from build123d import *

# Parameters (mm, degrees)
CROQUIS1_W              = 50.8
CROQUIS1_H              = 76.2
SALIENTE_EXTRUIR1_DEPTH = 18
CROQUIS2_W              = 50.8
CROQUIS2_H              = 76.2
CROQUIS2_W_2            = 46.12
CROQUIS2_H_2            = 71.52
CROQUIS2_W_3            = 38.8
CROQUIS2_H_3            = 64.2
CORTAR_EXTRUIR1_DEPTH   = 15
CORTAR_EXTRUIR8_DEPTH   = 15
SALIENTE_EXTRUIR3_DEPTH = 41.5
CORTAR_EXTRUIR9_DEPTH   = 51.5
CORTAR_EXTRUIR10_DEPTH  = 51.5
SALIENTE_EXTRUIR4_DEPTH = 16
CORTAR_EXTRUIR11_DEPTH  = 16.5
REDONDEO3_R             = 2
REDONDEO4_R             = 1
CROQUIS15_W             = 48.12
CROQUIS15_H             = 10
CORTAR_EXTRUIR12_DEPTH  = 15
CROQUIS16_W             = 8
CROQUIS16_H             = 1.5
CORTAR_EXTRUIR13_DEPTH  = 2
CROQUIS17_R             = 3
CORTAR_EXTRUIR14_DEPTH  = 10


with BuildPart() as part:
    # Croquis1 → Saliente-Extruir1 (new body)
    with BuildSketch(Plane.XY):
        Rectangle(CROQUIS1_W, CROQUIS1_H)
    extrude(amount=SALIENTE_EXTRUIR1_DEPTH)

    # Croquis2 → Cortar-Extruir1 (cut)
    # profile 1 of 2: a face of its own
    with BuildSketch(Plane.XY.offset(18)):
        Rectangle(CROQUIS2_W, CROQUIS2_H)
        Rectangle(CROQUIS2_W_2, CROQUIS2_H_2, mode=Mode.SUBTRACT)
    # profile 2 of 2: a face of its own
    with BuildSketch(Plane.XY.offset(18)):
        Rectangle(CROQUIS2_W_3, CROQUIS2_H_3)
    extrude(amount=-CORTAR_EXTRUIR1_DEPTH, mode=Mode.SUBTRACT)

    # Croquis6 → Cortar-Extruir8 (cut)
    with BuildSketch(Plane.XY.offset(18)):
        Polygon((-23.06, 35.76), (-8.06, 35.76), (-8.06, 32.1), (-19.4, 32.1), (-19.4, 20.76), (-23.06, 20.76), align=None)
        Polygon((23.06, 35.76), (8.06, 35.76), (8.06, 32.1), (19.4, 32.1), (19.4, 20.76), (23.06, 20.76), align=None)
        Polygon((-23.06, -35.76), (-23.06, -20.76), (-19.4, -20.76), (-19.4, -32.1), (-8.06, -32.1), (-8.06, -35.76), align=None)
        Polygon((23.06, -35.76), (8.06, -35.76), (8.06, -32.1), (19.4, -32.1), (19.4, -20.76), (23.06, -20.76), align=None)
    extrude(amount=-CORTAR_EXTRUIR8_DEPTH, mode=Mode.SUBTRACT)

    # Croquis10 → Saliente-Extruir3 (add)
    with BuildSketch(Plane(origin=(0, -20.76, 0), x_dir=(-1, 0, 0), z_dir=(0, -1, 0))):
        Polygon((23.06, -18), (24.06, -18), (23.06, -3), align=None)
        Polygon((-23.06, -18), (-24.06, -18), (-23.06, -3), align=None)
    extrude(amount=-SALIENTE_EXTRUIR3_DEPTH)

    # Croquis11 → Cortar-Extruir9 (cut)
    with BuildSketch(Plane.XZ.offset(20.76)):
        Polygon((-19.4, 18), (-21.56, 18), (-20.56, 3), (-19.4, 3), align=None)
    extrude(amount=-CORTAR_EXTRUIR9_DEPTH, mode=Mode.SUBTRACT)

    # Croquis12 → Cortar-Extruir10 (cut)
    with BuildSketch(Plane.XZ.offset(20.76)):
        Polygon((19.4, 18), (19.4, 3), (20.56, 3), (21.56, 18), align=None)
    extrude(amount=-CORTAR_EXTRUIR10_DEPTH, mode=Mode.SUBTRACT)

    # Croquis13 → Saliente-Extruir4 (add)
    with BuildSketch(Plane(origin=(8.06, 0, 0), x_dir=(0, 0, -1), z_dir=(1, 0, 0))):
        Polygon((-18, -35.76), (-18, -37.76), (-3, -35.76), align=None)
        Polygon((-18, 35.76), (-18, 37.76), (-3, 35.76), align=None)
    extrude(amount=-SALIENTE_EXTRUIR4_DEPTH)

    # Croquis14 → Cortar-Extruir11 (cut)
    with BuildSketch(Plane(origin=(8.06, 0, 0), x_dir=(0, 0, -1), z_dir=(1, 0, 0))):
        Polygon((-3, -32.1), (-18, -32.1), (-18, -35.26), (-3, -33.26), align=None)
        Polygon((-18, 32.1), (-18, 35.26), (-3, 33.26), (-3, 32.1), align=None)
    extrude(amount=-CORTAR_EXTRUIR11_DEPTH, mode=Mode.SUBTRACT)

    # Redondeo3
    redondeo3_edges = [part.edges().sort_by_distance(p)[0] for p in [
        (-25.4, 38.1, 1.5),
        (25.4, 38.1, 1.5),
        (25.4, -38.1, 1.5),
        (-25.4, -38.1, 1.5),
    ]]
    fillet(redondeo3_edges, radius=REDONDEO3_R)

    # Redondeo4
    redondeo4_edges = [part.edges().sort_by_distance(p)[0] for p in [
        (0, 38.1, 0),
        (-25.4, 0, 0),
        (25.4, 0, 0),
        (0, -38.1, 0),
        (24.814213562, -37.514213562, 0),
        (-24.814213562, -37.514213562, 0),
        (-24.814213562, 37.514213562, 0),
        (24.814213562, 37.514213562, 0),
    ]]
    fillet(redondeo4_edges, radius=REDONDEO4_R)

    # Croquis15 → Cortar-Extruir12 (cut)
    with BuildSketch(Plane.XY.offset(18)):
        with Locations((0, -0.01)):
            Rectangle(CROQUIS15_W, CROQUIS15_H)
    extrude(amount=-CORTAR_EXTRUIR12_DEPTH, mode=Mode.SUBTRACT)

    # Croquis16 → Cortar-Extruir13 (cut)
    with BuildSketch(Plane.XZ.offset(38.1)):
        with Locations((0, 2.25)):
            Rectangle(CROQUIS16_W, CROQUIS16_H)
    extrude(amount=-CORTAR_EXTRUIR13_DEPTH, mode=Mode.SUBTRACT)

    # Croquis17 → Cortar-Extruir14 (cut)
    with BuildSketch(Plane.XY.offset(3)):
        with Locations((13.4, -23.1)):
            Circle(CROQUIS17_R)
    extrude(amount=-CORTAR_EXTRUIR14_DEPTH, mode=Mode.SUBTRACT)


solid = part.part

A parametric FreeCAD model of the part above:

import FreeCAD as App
import Part
import Sketcher
from FreeCAD import Vector


def edges_at(feature, points):
    """Names of the edges that pass closest to the given points."""
    edges = feature.Shape.Edges
    near = lambda p: min(range(len(edges)), key=lambda i: edges[i].distToShape(Part.Vertex(*p))[0])
    return sorted({f"Edge{near(p) + 1}" for p in points})

doc = App.newDocument("Part")
params = doc.addObject("Spreadsheet::Sheet", "Params")
for row, (alias, value) in enumerate([
    ("sketch1_width", "50.8 mm"),
    ("sketch1_height", "76.2 mm"),
    ("pad1_length", "18 mm"),
    ("sketch2_width", "50.8 mm"),
    ("sketch2_width2", "38.8 mm"),
    ("sketch2_height", "76.2 mm"),
    ("sketch2_height2", "64.2 mm"),
    ("sketch2_width3", "46.12 mm"),
    ("pocket1_length", "15 mm"),
    ("sketch3_width", "15 mm"),
    ("sketch3_width2", "3.66 mm"),
    ("pocket2_length", "15 mm"),
    ("sketch4_width", "1 mm"),
    ("sketch4_height", "15 mm"),
    ("pad2_length", "41.5 mm"),
    ("sketch5_height", "15 mm"),
    ("sketch5_width", "2.16 mm"),
    ("pocket3_length", "51.5 mm"),
    ("sketch6_height", "15 mm"),
    ("sketch6_width", "1.16 mm"),
    ("pocket4_length", "51.5 mm"),
    ("sketch7_width", "2 mm"),
    ("sketch7_height", "15 mm"),
    ("pad3_length", "16 mm"),
    ("sketch8_height", "15 mm"),
    ("sketch8_width", "3.16 mm"),
    ("pocket5_length", "16.5 mm"),
    ("fillet_radius", "2 mm"),
    ("fillet2_radius", "1 mm"),
    ("sketch9_height", "10 mm"),
    ("sketch9_width", "48.12 mm"),
    ("pocket6_length", "15 mm"),
    ("sketch10_width", "8 mm"),
    ("sketch10_height", "1.5 mm"),
    ("pocket7_length", "2 mm"),
    ("sketch11_diameter", "6 mm"),
    ("pocket8_length", "10 mm"),
], start=1):
    params.set(f"A{row}", alias)
    params.set(f"B{row}", "=" + value)
    params.setAlias(f"B{row}", alias)

body = doc.addObject("PartDesign::Body", "Body")

# Sketch on XY plane
sketch1 = doc.addObject("Sketcher::SketchObject", "Sketch")
body.addObject(sketch1)
sketch1.AttachmentSupport = (doc.XY_Plane, [""])
sketch1.MapMode = "FlatFace"
sketch1.addGeometry([
    Part.LineSegment(Vector(-25.4, 38.1, 0), Vector(-25.4, -38.1, 0)),
    Part.LineSegment(Vector(-25.4, -38.1, 0), Vector(25.4, -38.1, 0)),
    Part.LineSegment(Vector(25.4, -38.1, 0), Vector(25.4, 38.1, 0)),
    Part.LineSegment(Vector(25.4, 38.1, 0), Vector(-25.4, 38.1, 0)),
], False)
sketch1.addConstraint([
    Sketcher.Constraint("Coincident", 0, 2, 1, 1),
    Sketcher.Constraint("Coincident", 1, 2, 2, 1),
    Sketcher.Constraint("Coincident", 2, 2, 3, 1),
    Sketcher.Constraint("Coincident", 3, 2, 0, 1),
    Sketcher.Constraint("Vertical", 0),
    Sketcher.Constraint("Horizontal", 1),
    Sketcher.Constraint("Vertical", 2),
    Sketcher.Constraint("Horizontal", 3),
    Sketcher.Constraint("Symmetric", 0, 2, 2, 2, -1, 1),
    Sketcher.Constraint("DistanceX", 1, 1, 1, 2, 50.8),
    Sketcher.Constraint("DistanceY", 0, 2, 0, 1, 76.2),
])
sketch1.setExpression("Constraints[9]", "Params.sketch1_width")
sketch1.setExpression("Constraints[10]", "Params.sketch1_height")
pad1 = doc.addObject("PartDesign::Pad", "Pad")
body.addObject(pad1)
pad1.Profile = sketch1
pad1.setExpression("Length", "Params.pad1_length")

# Sketch on XY plane
sketch2 = doc.addObject("Sketcher::SketchObject", "Sketch001")
body.addObject(sketch2)
sketch2.AttachmentSupport = (doc.XY_Plane, [""])
sketch2.MapMode = "FlatFace"
sketch2.AttachmentOffset = App.Placement(Vector(0, 0, 18), App.Rotation())
sketch2.addGeometry([
    Part.LineSegment(Vector(-25.4, 38.1, 0), Vector(-25.4, -38.1, 0)),  # 0
    Part.LineSegment(Vector(-25.4, -38.1, 0), Vector(25.4, -38.1, 0)),  # 1
    Part.LineSegment(Vector(25.4, -38.1, 0), Vector(25.4, 38.1, 0)),  # 2
    Part.LineSegment(Vector(25.4, 38.1, 0), Vector(-25.4, 38.1, 0)),  # 3
    Part.LineSegment(Vector(23.06, -35.76, 0), Vector(-23.06, -35.76, 0)),  # 4
    Part.LineSegment(Vector(-23.06, -35.76, 0), Vector(-23.06, 35.76, 0)),  # 5
    Part.LineSegment(Vector(-23.06, 35.76, 0), Vector(23.06, 35.76, 0)),  # 6
    Part.LineSegment(Vector(23.06, 35.76, 0), Vector(23.06, -35.76, 0)),  # 7
    Part.LineSegment(Vector(-19.4, 32.1, 0), Vector(-19.4, -32.1, 0)),  # 8
    Part.LineSegment(Vector(-19.4, -32.1, 0), Vector(19.4, -32.1, 0)),  # 9
    Part.LineSegment(Vector(19.4, -32.1, 0), Vector(19.4, 32.1, 0)),  # 10
    Part.LineSegment(Vector(19.4, 32.1, 0), Vector(-19.4, 32.1, 0)),  # 11
], False)
sketch2.addConstraint([
    Sketcher.Constraint("Coincident", 0, 2, 1, 1),
    Sketcher.Constraint("Coincident", 1, 2, 2, 1),
    Sketcher.Constraint("Coincident", 2, 2, 3, 1),
    Sketcher.Constraint("Coincident", 3, 2, 0, 1),
    Sketcher.Constraint("Coincident", 4, 2, 5, 1),
    Sketcher.Constraint("Coincident", 5, 2, 6, 1),
    Sketcher.Constraint("Coincident", 6, 2, 7, 1),
    Sketcher.Constraint("Coincident", 7, 2, 4, 1),
    Sketcher.Constraint("Coincident", 8, 2, 9, 1),
    Sketcher.Constraint("Coincident", 9, 2, 10, 1),
    Sketcher.Constraint("Coincident", 10, 2, 11, 1),
    Sketcher.Constraint("Coincident", 11, 2, 8, 1),
    Sketcher.Constraint("Vertical", 0),
    Sketcher.Constraint("Horizontal", 1),
    Sketcher.Constraint("Vertical", 2),
    Sketcher.Constraint("Horizontal", 3),
    Sketcher.Constraint("Horizontal", 4),
    Sketcher.Constraint("Vertical", 5),
    Sketcher.Constraint("Horizontal", 6),
    Sketcher.Constraint("Vertical", 7),
    Sketcher.Constraint("Vertical", 8),
    Sketcher.Constraint("Horizontal", 9),
    Sketcher.Constraint("Vertical", 10),
    Sketcher.Constraint("Horizontal", 11),
    Sketcher.Constraint("Symmetric", 0, 2, 2, 2, -1, 1),
    Sketcher.Constraint("Symmetric", 4, 2, 6, 2, -1, 1),
    Sketcher.Constraint("Symmetric", 8, 2, 10, 2, -1, 1),
    Sketcher.Constraint("DistanceX", 1, 1, 1, 2, 50.8),
    Sketcher.Constraint("DistanceX", 9, 1, 9, 2, 38.8),
    Sketcher.Constraint("DistanceY", 0, 2, 0, 1, 76.2),
    Sketcher.Constraint("DistanceY", 8, 2, 8, 1, 64.2),
    Sketcher.Constraint("DistanceX", 4, 2, 4, 1, 46.12),
    Sketcher.Constraint("DistanceY", 5, 1, 5, 2, 71.52),
])
sketch2.setExpression("Constraints[27]", "Params.sketch2_width")
sketch2.setExpression("Constraints[28]", "Params.sketch2_width2")
sketch2.setExpression("Constraints[29]", "Params.sketch2_height")
sketch2.setExpression("Constraints[30]", "Params.sketch2_height2")
sketch2.setExpression("Constraints[31]", "Params.sketch2_width3")
pocket1 = doc.addObject("PartDesign::Pocket", "Pocket")
body.addObject(pocket1)
pocket1.Profile = sketch2
pocket1.setExpression("Length", "Params.pocket1_length")

# Sketch on XY plane
sketch3 = doc.addObject("Sketcher::SketchObject", "Sketch002")
body.addObject(sketch3)
sketch3.AttachmentSupport = (doc.XY_Plane, [""])
sketch3.MapMode = "FlatFace"
sketch3.AttachmentOffset = App.Placement(Vector(0, 0, 18), App.Rotation())
sketch3.addGeometry([
    Part.LineSegment(Vector(-8.06, 35.76, 0), Vector(-23.06, 35.76, 0)),  # 0
    Part.LineSegment(Vector(-23.06, 35.76, 0), Vector(-23.06, 20.76, 0)),  # 1
    Part.LineSegment(Vector(-23.06, 20.76, 0), Vector(-19.4, 20.76, 0)),  # 2
    Part.LineSegment(Vector(-19.4, 20.76, 0), Vector(-19.4, 32.1, 0)),  # 3
    Part.LineSegment(Vector(-19.4, 32.1, 0), Vector(-8.06, 32.1, 0)),  # 4
    Part.LineSegment(Vector(-8.06, 32.1, 0), Vector(-8.06, 35.76, 0)),  # 5
    Part.LineSegment(Vector(23.06, 35.76, 0), Vector(8.06, 35.76, 0)),  # 6
    Part.LineSegment(Vector(8.06, 35.76, 0), Vector(8.06, 32.1, 0)),  # 7
    Part.LineSegment(Vector(8.06, 32.1, 0), Vector(19.4, 32.1, 0)),  # 8
    Part.LineSegment(Vector(19.4, 32.1, 0), Vector(19.4, 20.76, 0)),  # 9
    Part.LineSegment(Vector(19.4, 20.76, 0), Vector(23.06, 20.76, 0)),  # 10
    Part.LineSegment(Vector(23.06, 20.76, 0), Vector(23.06, 35.76, 0)),  # 11
    Part.LineSegment(Vector(-23.06, -20.76, 0), Vector(-23.06, -35.76, 0)),  # 12
    Part.LineSegment(Vector(-23.06, -35.76, 0), Vector(-8.06, -35.76, 0)),  # 13
    Part.LineSegment(Vector(-8.06, -35.76, 0), Vector(-8.06, -32.1, 0)),  # 14
    Part.LineSegment(Vector(-8.06, -32.1, 0), Vector(-19.4, -32.1, 0)),  # 15
    Part.LineSegment(Vector(-19.4, -32.1, 0), Vector(-19.4, -20.76, 0)),  # 16
    Part.LineSegment(Vector(-19.4, -20.76, 0), Vector(-23.06, -20.76, 0)),  # 17
    Part.LineSegment(Vector(8.06, -35.76, 0), Vector(23.06, -35.76, 0)),  # 18
    Part.LineSegment(Vector(23.06, -35.76, 0), Vector(23.06, -20.76, 0)),  # 19
    Part.LineSegment(Vector(23.06, -20.76, 0), Vector(19.4, -20.76, 0)),  # 20
    Part.LineSegment(Vector(19.4, -20.76, 0), Vector(19.4, -32.1, 0)),  # 21
    Part.LineSegment(Vector(19.4, -32.1, 0), Vector(8.06, -32.1, 0)),  # 22
    Part.LineSegment(Vector(8.06, -32.1, 0), Vector(8.06, -35.76, 0)),  # 23
], False)
sketch3.addConstraint([
    Sketcher.Constraint("Coincident", 0, 2, 1, 1),
    Sketcher.Constraint("Coincident", 1, 2, 2, 1),
    Sketcher.Constraint("Coincident", 2, 2, 3, 1),
    Sketcher.Constraint("Coincident", 3, 2, 4, 1),
    Sketcher.Constraint("Coincident", 4, 2, 5, 1),
    Sketcher.Constraint("Coincident", 5, 2, 0, 1),
    Sketcher.Constraint("Coincident", 6, 2, 7, 1),
    Sketcher.Constraint("Coincident", 7, 2, 8, 1),
    Sketcher.Constraint("Coincident", 8, 2, 9, 1),
    Sketcher.Constraint("Coincident", 9, 2, 10, 1),
    Sketcher.Constraint("Coincident", 10, 2, 11, 1),
    Sketcher.Constraint("Coincident", 11, 2, 6, 1),
    Sketcher.Constraint("Coincident", 12, 2, 13, 1),
    Sketcher.Constraint("Coincident", 13, 2, 14, 1),
    Sketcher.Constraint("Coincident", 14, 2, 15, 1),
    Sketcher.Constraint("Coincident", 15, 2, 16, 1),
    Sketcher.Constraint("Coincident", 16, 2, 17, 1),
    Sketcher.Constraint("Coincident", 17, 2, 12, 1),
    Sketcher.Constraint("Coincident", 18, 2, 19, 1),
    Sketcher.Constraint("Coincident", 19, 2, 20, 1),
    Sketcher.Constraint("Coincident", 20, 2, 21, 1),
    Sketcher.Constraint("Coincident", 21, 2, 22, 1),
    Sketcher.Constraint("Coincident", 22, 2, 23, 1),
    Sketcher.Constraint("Coincident", 23, 2, 18, 1),
    Sketcher.Constraint("Horizontal", 0),
    Sketcher.Constraint("Vertical", 1),
    Sketcher.Constraint("Horizontal", 2),
    Sketcher.Constraint("Vertical", 3),
    Sketcher.Constraint("Horizontal", 4),
    Sketcher.Constraint("Vertical", 5),
    Sketcher.Constraint("Horizontal", 6),
    Sketcher.Constraint("Vertical", 7),
    Sketcher.Constraint("Horizontal", 8),
    Sketcher.Constraint("Vertical", 9),
    Sketcher.Constraint("Horizontal", 10),
    Sketcher.Constraint("Vertical", 11),
    Sketcher.Constraint("Vertical", 12),
    Sketcher.Constraint("Horizontal", 13),
    Sketcher.Constraint("Vertical", 14),
    Sketcher.Constraint("Horizontal", 15),
    Sketcher.Constraint("Vertical", 16),
    Sketcher.Constraint("Horizontal", 17),
    Sketcher.Constraint("Horizontal", 18),
    Sketcher.Constraint("Vertical", 19),
    Sketcher.Constraint("Horizontal", 20),
    Sketcher.Constraint("Vertical", 21),
    Sketcher.Constraint("Horizontal", 22),
    Sketcher.Constraint("Vertical", 23),
    Sketcher.Constraint("Symmetric", 11, 2, 12, 2, -1, 1),
    Sketcher.Constraint("Symmetric", 7, 2, 14, 2, -1, 1),
    Sketcher.Constraint("Symmetric", 9, 2, 16, 2, -1, 1),
    Sketcher.Constraint("Symmetric", 0, 2, 18, 2, -1, 1),
    Sketcher.Constraint("Symmetric", 2, 2, 20, 2, -1, 1),
    Sketcher.Constraint("Symmetric", 4, 2, 22, 2, -1, 1),
    Sketcher.Constraint("Symmetric", 5, 2, 6, 2, -2),
    Sketcher.Constraint("Symmetric", 3, 2, 8, 2, -2),
    Sketcher.Constraint("Symmetric", 1, 2, 10, 2, -2),
    Sketcher.Constraint("Equal", 18, 1),
    Sketcher.Constraint("Equal", 22, 3),
    Sketcher.Constraint("DistanceX", 0, 2, 0, 1, 15.0),
    Sketcher.Constraint("DistanceX", 2, 1, 2, 2, 3.66),
    Sketcher.Constraint("DistanceX", 2, 2, -1, 1, 19.4),
    Sketcher.Constraint("DistanceY", -1, 1, 3, 2, 32.1),
])
sketch3.setExpression("Constraints[59]", "Params.sketch3_width")
sketch3.setExpression("Constraints[60]", "Params.sketch3_width2")
pocket2 = doc.addObject("PartDesign::Pocket", "Pocket001")
body.addObject(pocket2)
pocket2.Profile = sketch3
pocket2.setExpression("Length", "Params.pocket2_length")

# Sketch on XZ plane
sketch4 = doc.addObject("Sketcher::SketchObject", "Sketch003")
body.addObject(sketch4)
sketch4.AttachmentSupport = (doc.XZ_Plane, [""])
sketch4.MapMode = "FlatFace"
sketch4.AttachmentOffset = App.Placement(Vector(0, 0, 20.76), App.Rotation())
sketch4.addGeometry([
    Part.LineSegment(Vector(-23.06, 18, 0), Vector(-24.06, 18, 0)),  # 0
    Part.LineSegment(Vector(-24.06, 18, 0), Vector(-23.06, 3, 0)),  # 1
    Part.LineSegment(Vector(-23.06, 3, 0), Vector(-23.06, 18, 0)),  # 2
    Part.LineSegment(Vector(24.06, 18, 0), Vector(23.06, 18, 0)),  # 3
    Part.LineSegment(Vector(23.06, 18, 0), Vector(23.06, 3, 0)),  # 4
    Part.LineSegment(Vector(23.06, 3, 0), Vector(24.06, 18, 0)),  # 5
], False)
sketch4.addConstraint([
    Sketcher.Constraint("Coincident", 0, 2, 1, 1),
    Sketcher.Constraint("Coincident", 1, 2, 2, 1),
    Sketcher.Constraint("Coincident", 2, 2, 0, 1),
    Sketcher.Constraint("Coincident", 3, 2, 4, 1),
    Sketcher.Constraint("Coincident", 4, 2, 5, 1),
    Sketcher.Constraint("Coincident", 5, 2, 3, 1),
    Sketcher.Constraint("Horizontal", 0),
    Sketcher.Constraint("Vertical", 2),
    Sketcher.Constraint("Horizontal", 3),
    Sketcher.Constraint("Vertical", 4),
    Sketcher.Constraint("Symmetric", 2, 2, 3, 2, -2),
    Sketcher.Constraint("Horizontal", 1, 2, 4, 2),
    Sketcher.Constraint("Equal", 0, 3),
    Sketcher.Constraint("DistanceX", 0, 2, 0, 1, 1.0),
    Sketcher.Constraint("DistanceY", 2, 1, 2, 2, 15.0),
    Sketcher.Constraint("DistanceY", -1, 1, 0, 2, 18.0),
    Sketcher.Constraint("DistanceX", 0, 2, -1, 1, 24.06),
])
sketch4.setExpression("Constraints[13]", "Params.sketch4_width")
sketch4.setExpression("Constraints[14]", "Params.sketch4_height")
pad2 = doc.addObject("PartDesign::Pad", "Pad001")
body.addObject(pad2)
pad2.Profile = sketch4
pad2.setExpression("Length", "Params.pad2_length")
pad2.Reversed = True

# Sketch on XZ plane
sketch5 = doc.addObject("Sketcher::SketchObject", "Sketch004")
body.addObject(sketch5)
sketch5.AttachmentSupport = (doc.XZ_Plane, [""])
sketch5.MapMode = "FlatFace"
sketch5.AttachmentOffset = App.Placement(Vector(0, 0, 20.76), App.Rotation())
sketch5.addGeometry([
    Part.LineSegment(Vector(-19.4, 18, 0), Vector(-21.56, 18, 0)),
    Part.LineSegment(Vector(-21.56, 18, 0), Vector(-20.56, 3, 0)),
    Part.LineSegment(Vector(-20.56, 3, 0), Vector(-19.4, 3, 0)),
    Part.LineSegment(Vector(-19.4, 3, 0), Vector(-19.4, 18, 0)),
], False)
sketch5.addConstraint([
    Sketcher.Constraint("Coincident", 0, 2, 1, 1),
    Sketcher.Constraint("Coincident", 1, 2, 2, 1),
    Sketcher.Constraint("Coincident", 2, 2, 3, 1),
    Sketcher.Constraint("Coincident", 3, 2, 0, 1),
    Sketcher.Constraint("Horizontal", 0),
    Sketcher.Constraint("Horizontal", 2),
    Sketcher.Constraint("Vertical", 3),
    Sketcher.Constraint("DistanceY", 3, 1, 3, 2, 15.0),
    Sketcher.Constraint("DistanceY", -1, 1, 0, 2, 18.0),
    Sketcher.Constraint("DistanceX", 0, 2, 1, 2, 1.0),
    Sketcher.Constraint("DistanceX", 0, 2, 0, 1, 2.16),
    Sketcher.Constraint("DistanceX", 2, 2, -1, 1, 19.4),
])
sketch5.setExpression("Constraints[7]", "Params.sketch5_height")
sketch5.setExpression("Constraints[10]", "Params.sketch5_width")
pocket3 = doc.addObject("PartDesign::Pocket", "Pocket002")
body.addObject(pocket3)
pocket3.Profile = sketch5
pocket3.setExpression("Length", "Params.pocket3_length")

# Sketch on XZ plane
sketch6 = doc.addObject("Sketcher::SketchObject", "Sketch005")
body.addObject(sketch6)
sketch6.AttachmentSupport = (doc.XZ_Plane, [""])
sketch6.MapMode = "FlatFace"
sketch6.AttachmentOffset = App.Placement(Vector(0, 0, 20.76), App.Rotation())
sketch6.addGeometry([
    Part.LineSegment(Vector(19.4, 18, 0), Vector(19.4, 3, 0)),
    Part.LineSegment(Vector(19.4, 3, 0), Vector(20.56, 3, 0)),
    Part.LineSegment(Vector(20.56, 3, 0), Vector(21.56, 18, 0)),
    Part.LineSegment(Vector(21.56, 18, 0), Vector(19.4, 18, 0)),
], False)
sketch6.addConstraint([
    Sketcher.Constraint("Coincident", 0, 2, 1, 1),
    Sketcher.Constraint("Coincident", 1, 2, 2, 1),
    Sketcher.Constraint("Coincident", 2, 2, 3, 1),
    Sketcher.Constraint("Coincident", 3, 2, 0, 1),
    Sketcher.Constraint("Vertical", 0),
    Sketcher.Constraint("Horizontal", 1),
    Sketcher.Constraint("Horizontal", 3),
    Sketcher.Constraint("DistanceY", 0, 2, 0, 1, 15.0),
    Sketcher.Constraint("DistanceY", -1, 1, 0, 2, 3.0),
    Sketcher.Constraint("DistanceX", 1, 2, 2, 2, 1.0),
    Sketcher.Constraint("DistanceX", 1, 1, 1, 2, 1.16),
    Sketcher.Constraint("DistanceX", -1, 1, 0, 2, 19.4),
])
sketch6.setExpression("Constraints[7]", "Params.sketch6_height")
sketch6.setExpression("Constraints[10]", "Params.sketch6_width")
pocket4 = doc.addObject("PartDesign::Pocket", "Pocket003")
body.addObject(pocket4)
pocket4.Profile = sketch6
pocket4.setExpression("Length", "Params.pocket4_length")

# Sketch on YZ plane
sketch7 = doc.addObject("Sketcher::SketchObject", "Sketch006")
body.addObject(sketch7)
sketch7.AttachmentSupport = (doc.YZ_Plane, [""])
sketch7.MapMode = "FlatFace"
sketch7.AttachmentOffset = App.Placement(Vector(0, 0, 8.06), App.Rotation())
sketch7.addGeometry([
    Part.LineSegment(Vector(-35.76, 18, 0), Vector(-37.76, 18, 0)),  # 0
    Part.LineSegment(Vector(-37.76, 18, 0), Vector(-35.76, 3, 0)),  # 1
    Part.LineSegment(Vector(-35.76, 3, 0), Vector(-35.76, 18, 0)),  # 2
    Part.LineSegment(Vector(37.76, 18, 0), Vector(35.76, 18, 0)),  # 3
    Part.LineSegment(Vector(35.76, 18, 0), Vector(35.76, 3, 0)),  # 4
    Part.LineSegment(Vector(35.76, 3, 0), Vector(37.76, 18, 0)),  # 5
], False)
sketch7.addConstraint([
    Sketcher.Constraint("Coincident", 0, 2, 1, 1),
    Sketcher.Constraint("Coincident", 1, 2, 2, 1),
    Sketcher.Constraint("Coincident", 2, 2, 0, 1),
    Sketcher.Constraint("Coincident", 3, 2, 4, 1),
    Sketcher.Constraint("Coincident", 4, 2, 5, 1),
    Sketcher.Constraint("Coincident", 5, 2, 3, 1),
    Sketcher.Constraint("Horizontal", 0),
    Sketcher.Constraint("Vertical", 2),
    Sketcher.Constraint("Horizontal", 3),
    Sketcher.Constraint("Vertical", 4),
    Sketcher.Constraint("Symmetric", 2, 2, 3, 2, -2),
    Sketcher.Constraint("Horizontal", 1, 2, 4, 2),
    Sketcher.Constraint("Equal", 0, 3),
    Sketcher.Constraint("DistanceX", 0, 2, 0, 1, 2.0),
    Sketcher.Constraint("DistanceY", 2, 1, 2, 2, 15.0),
    Sketcher.Constraint("DistanceY", -1, 1, 0, 2, 18.0),
    Sketcher.Constraint("DistanceX", 0, 2, -1, 1, 37.76),
])
sketch7.setExpression("Constraints[13]", "Params.sketch7_width")
sketch7.setExpression("Constraints[14]", "Params.sketch7_height")
pad3 = doc.addObject("PartDesign::Pad", "Pad002")
body.addObject(pad3)
pad3.Profile = sketch7
pad3.setExpression("Length", "Params.pad3_length")
pad3.Reversed = True

# Sketch on YZ plane
sketch8 = doc.addObject("Sketcher::SketchObject", "Sketch007")
body.addObject(sketch8)
sketch8.AttachmentSupport = (doc.YZ_Plane, [""])
sketch8.MapMode = "FlatFace"
sketch8.AttachmentOffset = App.Placement(Vector(0, 0, 8.06), App.Rotation())
sketch8.addGeometry([
    Part.LineSegment(Vector(-32.1, 3, 0), Vector(-32.1, 18, 0)),  # 0
    Part.LineSegment(Vector(-32.1, 18, 0), Vector(-35.26, 18, 0)),  # 1
    Part.LineSegment(Vector(-35.26, 18, 0), Vector(-33.26, 3, 0)),  # 2
    Part.LineSegment(Vector(-33.26, 3, 0), Vector(-32.1, 3, 0)),  # 3
    Part.LineSegment(Vector(35.26, 18, 0), Vector(32.1, 18, 0)),  # 4
    Part.LineSegment(Vector(32.1, 18, 0), Vector(32.1, 3, 0)),  # 5
    Part.LineSegment(Vector(32.1, 3, 0), Vector(33.26, 3, 0)),  # 6
    Part.LineSegment(Vector(33.26, 3, 0), Vector(35.26, 18, 0)),  # 7
], False)
sketch8.addConstraint([
    Sketcher.Constraint("Coincident", 0, 2, 1, 1),
    Sketcher.Constraint("Coincident", 1, 2, 2, 1),
    Sketcher.Constraint("Coincident", 2, 2, 3, 1),
    Sketcher.Constraint("Coincident", 3, 2, 0, 1),
    Sketcher.Constraint("Coincident", 4, 2, 5, 1),
    Sketcher.Constraint("Coincident", 5, 2, 6, 1),
    Sketcher.Constraint("Coincident", 6, 2, 7, 1),
    Sketcher.Constraint("Coincident", 7, 2, 4, 1),
    Sketcher.Constraint("Vertical", 0),
    Sketcher.Constraint("Horizontal", 1),
    Sketcher.Constraint("Horizontal", 3),
    Sketcher.Constraint("Horizontal", 4),
    Sketcher.Constraint("Vertical", 5),
    Sketcher.Constraint("Horizontal", 6),
    Sketcher.Constraint("Symmetric", 0, 2, 4, 2, -2),
    Sketcher.Constraint("Symmetric", 2, 2, 6, 2, -2),
    Sketcher.Constraint("Equal", 1, 4),
    Sketcher.Constraint("DistanceY", 0, 1, 0, 2, 15.0),
    Sketcher.Constraint("DistanceY", -1, 1, 0, 2, 18.0),
    Sketcher.Constraint("DistanceX", 1, 2, 2, 2, 2.0),
    Sketcher.Constraint("DistanceX", 1, 2, 1, 1, 3.16),
    Sketcher.Constraint("DistanceX", 0, 2, -1, 1, 32.1),
])
sketch8.setExpression("Constraints[17]", "Params.sketch8_height")
sketch8.setExpression("Constraints[20]", "Params.sketch8_width")
pocket5 = doc.addObject("PartDesign::Pocket", "Pocket004")
body.addObject(pocket5)
pocket5.Profile = sketch8
pocket5.setExpression("Length", "Params.pocket5_length")
doc.recompute()

fillet = doc.addObject("PartDesign::Fillet", "Fillet")
body.addObject(fillet)
fillet.Base = (pocket5, edges_at(pocket5, [
    (-25.4, 38.1, 1.5),
    (25.4, 38.1, 1.5),
    (25.4, -38.1, 1.5),
    (-25.4, -38.1, 1.5),
]))
fillet.setExpression("Radius", "Params.fillet_radius")
doc.recompute()

fillet2 = doc.addObject("PartDesign::Fillet", "Fillet001")
body.addObject(fillet2)
fillet2.Base = (fillet, edges_at(fillet, [
    (0, 38.1, 0),
    (-25.4, 0, 0),
    (25.4, 0, 0),
    (0, -38.1, 0),
    (24.814, -37.514, 0),
    (-24.814, -37.514, 0),
    (-24.814, 37.514, 0),
    (24.814, 37.514, 0),
]))
fillet2.setExpression("Radius", "Params.fillet2_radius")

# Sketch on XY plane
sketch9 = doc.addObject("Sketcher::SketchObject", "Sketch008")
body.addObject(sketch9)
sketch9.AttachmentSupport = (doc.XY_Plane, [""])
sketch9.MapMode = "FlatFace"
sketch9.AttachmentOffset = App.Placement(Vector(0, 0, 18), App.Rotation())
sketch9.addGeometry([
    Part.LineSegment(Vector(-24.06, 4.99, 0), Vector(-24.06, -5.01, 0)),
    Part.LineSegment(Vector(-24.06, -5.01, 0), Vector(24.06, -5.01, 0)),
    Part.LineSegment(Vector(24.06, -5.01, 0), Vector(24.06, 4.99, 0)),
    Part.LineSegment(Vector(24.06, 4.99, 0), Vector(-24.06, 4.99, 0)),
], False)
sketch9.addConstraint([
    Sketcher.Constraint("Coincident", 0, 2, 1, 1),
    Sketcher.Constraint("Coincident", 1, 2, 2, 1),
    Sketcher.Constraint("Coincident", 2, 2, 3, 1),
    Sketcher.Constraint("Coincident", 3, 2, 0, 1),
    Sketcher.Constraint("Vertical", 0),
    Sketcher.Constraint("Horizontal", 1),
    Sketcher.Constraint("Vertical", 2),
    Sketcher.Constraint("Horizontal", 3),
    Sketcher.Constraint("DistanceY", 0, 2, 0, 1, 10.0),
    Sketcher.Constraint("DistanceX", 1, 1, 1, 2, 48.12),
    Sketcher.Constraint("DistanceX", 0, 2, -1, 1, 24.06),
    Sketcher.Constraint("DistanceY", 0, 2, -1, 1, 5.01),
])
sketch9.setExpression("Constraints[8]", "Params.sketch9_height")
sketch9.setExpression("Constraints[9]", "Params.sketch9_width")
pocket6 = doc.addObject("PartDesign::Pocket", "Pocket005")
body.addObject(pocket6)
pocket6.Profile = sketch9
pocket6.setExpression("Length", "Params.pocket6_length")

# Sketch on XZ plane
sketch10 = doc.addObject("Sketcher::SketchObject", "Sketch009")
body.addObject(sketch10)
sketch10.AttachmentSupport = (doc.XZ_Plane, [""])
sketch10.MapMode = "FlatFace"
sketch10.AttachmentOffset = App.Placement(Vector(0, 0, 38.1), App.Rotation())
sketch10.addGeometry([
    Part.LineSegment(Vector(-4, 3, 0), Vector(-4, 1.5, 0)),
    Part.LineSegment(Vector(-4, 1.5, 0), Vector(4, 1.5, 0)),
    Part.LineSegment(Vector(4, 1.5, 0), Vector(4, 3, 0)),
    Part.LineSegment(Vector(4, 3, 0), Vector(-4, 3, 0)),
], False)
sketch10.addConstraint([
    Sketcher.Constraint("Coincident", 0, 2, 1, 1),
    Sketcher.Constraint("Coincident", 1, 2, 2, 1),
    Sketcher.Constraint("Coincident", 2, 2, 3, 1),
    Sketcher.Constraint("Coincident", 3, 2, 0, 1),
    Sketcher.Constraint("Vertical", 0),
    Sketcher.Constraint("Horizontal", 1),
    Sketcher.Constraint("Vertical", 2),
    Sketcher.Constraint("Horizontal", 3),
    Sketcher.Constraint("DistanceX", 1, 1, 1, 2, 8.0),
    Sketcher.Constraint("DistanceY", 0, 2, 0, 1, 1.5),
    Sketcher.Constraint("DistanceX", 0, 2, -1, 1, 4.0),
    Sketcher.Constraint("DistanceY", -1, 1, 2, 2, 3.0),
])
sketch10.setExpression("Constraints[8]", "Params.sketch10_width")
sketch10.setExpression("Constraints[9]", "Params.sketch10_height")
pocket7 = doc.addObject("PartDesign::Pocket", "Pocket006")
body.addObject(pocket7)
pocket7.Profile = sketch10
pocket7.setExpression("Length", "Params.pocket7_length")

# Sketch on XY plane
sketch11 = doc.addObject("Sketcher::SketchObject", "Sketch010")
body.addObject(sketch11)
sketch11.AttachmentSupport = (doc.XY_Plane, [""])
sketch11.MapMode = "FlatFace"
sketch11.AttachmentOffset = App.Placement(Vector(0, 0, 3), App.Rotation())
sketch11.addGeometry(Part.Circle(Vector(13.4, -23.1, 0), Vector(0, 0, 1), 3), False)
sketch11.addConstraint([
    Sketcher.Constraint("Diameter", 0, 6.0),
    Sketcher.Constraint("DistanceX", -1, 1, 0, 3, 13.4),
    Sketcher.Constraint("DistanceY", 0, 3, -1, 1, 23.1),
])
sketch11.setExpression("Constraints[0]", "Params.sketch11_diameter")
pocket8 = doc.addObject("PartDesign::Pocket", "Pocket007")
body.addObject(pocket8)
pocket8.Profile = sketch11
pocket8.setExpression("Length", "Params.pocket8_length")

doc.recompute()
